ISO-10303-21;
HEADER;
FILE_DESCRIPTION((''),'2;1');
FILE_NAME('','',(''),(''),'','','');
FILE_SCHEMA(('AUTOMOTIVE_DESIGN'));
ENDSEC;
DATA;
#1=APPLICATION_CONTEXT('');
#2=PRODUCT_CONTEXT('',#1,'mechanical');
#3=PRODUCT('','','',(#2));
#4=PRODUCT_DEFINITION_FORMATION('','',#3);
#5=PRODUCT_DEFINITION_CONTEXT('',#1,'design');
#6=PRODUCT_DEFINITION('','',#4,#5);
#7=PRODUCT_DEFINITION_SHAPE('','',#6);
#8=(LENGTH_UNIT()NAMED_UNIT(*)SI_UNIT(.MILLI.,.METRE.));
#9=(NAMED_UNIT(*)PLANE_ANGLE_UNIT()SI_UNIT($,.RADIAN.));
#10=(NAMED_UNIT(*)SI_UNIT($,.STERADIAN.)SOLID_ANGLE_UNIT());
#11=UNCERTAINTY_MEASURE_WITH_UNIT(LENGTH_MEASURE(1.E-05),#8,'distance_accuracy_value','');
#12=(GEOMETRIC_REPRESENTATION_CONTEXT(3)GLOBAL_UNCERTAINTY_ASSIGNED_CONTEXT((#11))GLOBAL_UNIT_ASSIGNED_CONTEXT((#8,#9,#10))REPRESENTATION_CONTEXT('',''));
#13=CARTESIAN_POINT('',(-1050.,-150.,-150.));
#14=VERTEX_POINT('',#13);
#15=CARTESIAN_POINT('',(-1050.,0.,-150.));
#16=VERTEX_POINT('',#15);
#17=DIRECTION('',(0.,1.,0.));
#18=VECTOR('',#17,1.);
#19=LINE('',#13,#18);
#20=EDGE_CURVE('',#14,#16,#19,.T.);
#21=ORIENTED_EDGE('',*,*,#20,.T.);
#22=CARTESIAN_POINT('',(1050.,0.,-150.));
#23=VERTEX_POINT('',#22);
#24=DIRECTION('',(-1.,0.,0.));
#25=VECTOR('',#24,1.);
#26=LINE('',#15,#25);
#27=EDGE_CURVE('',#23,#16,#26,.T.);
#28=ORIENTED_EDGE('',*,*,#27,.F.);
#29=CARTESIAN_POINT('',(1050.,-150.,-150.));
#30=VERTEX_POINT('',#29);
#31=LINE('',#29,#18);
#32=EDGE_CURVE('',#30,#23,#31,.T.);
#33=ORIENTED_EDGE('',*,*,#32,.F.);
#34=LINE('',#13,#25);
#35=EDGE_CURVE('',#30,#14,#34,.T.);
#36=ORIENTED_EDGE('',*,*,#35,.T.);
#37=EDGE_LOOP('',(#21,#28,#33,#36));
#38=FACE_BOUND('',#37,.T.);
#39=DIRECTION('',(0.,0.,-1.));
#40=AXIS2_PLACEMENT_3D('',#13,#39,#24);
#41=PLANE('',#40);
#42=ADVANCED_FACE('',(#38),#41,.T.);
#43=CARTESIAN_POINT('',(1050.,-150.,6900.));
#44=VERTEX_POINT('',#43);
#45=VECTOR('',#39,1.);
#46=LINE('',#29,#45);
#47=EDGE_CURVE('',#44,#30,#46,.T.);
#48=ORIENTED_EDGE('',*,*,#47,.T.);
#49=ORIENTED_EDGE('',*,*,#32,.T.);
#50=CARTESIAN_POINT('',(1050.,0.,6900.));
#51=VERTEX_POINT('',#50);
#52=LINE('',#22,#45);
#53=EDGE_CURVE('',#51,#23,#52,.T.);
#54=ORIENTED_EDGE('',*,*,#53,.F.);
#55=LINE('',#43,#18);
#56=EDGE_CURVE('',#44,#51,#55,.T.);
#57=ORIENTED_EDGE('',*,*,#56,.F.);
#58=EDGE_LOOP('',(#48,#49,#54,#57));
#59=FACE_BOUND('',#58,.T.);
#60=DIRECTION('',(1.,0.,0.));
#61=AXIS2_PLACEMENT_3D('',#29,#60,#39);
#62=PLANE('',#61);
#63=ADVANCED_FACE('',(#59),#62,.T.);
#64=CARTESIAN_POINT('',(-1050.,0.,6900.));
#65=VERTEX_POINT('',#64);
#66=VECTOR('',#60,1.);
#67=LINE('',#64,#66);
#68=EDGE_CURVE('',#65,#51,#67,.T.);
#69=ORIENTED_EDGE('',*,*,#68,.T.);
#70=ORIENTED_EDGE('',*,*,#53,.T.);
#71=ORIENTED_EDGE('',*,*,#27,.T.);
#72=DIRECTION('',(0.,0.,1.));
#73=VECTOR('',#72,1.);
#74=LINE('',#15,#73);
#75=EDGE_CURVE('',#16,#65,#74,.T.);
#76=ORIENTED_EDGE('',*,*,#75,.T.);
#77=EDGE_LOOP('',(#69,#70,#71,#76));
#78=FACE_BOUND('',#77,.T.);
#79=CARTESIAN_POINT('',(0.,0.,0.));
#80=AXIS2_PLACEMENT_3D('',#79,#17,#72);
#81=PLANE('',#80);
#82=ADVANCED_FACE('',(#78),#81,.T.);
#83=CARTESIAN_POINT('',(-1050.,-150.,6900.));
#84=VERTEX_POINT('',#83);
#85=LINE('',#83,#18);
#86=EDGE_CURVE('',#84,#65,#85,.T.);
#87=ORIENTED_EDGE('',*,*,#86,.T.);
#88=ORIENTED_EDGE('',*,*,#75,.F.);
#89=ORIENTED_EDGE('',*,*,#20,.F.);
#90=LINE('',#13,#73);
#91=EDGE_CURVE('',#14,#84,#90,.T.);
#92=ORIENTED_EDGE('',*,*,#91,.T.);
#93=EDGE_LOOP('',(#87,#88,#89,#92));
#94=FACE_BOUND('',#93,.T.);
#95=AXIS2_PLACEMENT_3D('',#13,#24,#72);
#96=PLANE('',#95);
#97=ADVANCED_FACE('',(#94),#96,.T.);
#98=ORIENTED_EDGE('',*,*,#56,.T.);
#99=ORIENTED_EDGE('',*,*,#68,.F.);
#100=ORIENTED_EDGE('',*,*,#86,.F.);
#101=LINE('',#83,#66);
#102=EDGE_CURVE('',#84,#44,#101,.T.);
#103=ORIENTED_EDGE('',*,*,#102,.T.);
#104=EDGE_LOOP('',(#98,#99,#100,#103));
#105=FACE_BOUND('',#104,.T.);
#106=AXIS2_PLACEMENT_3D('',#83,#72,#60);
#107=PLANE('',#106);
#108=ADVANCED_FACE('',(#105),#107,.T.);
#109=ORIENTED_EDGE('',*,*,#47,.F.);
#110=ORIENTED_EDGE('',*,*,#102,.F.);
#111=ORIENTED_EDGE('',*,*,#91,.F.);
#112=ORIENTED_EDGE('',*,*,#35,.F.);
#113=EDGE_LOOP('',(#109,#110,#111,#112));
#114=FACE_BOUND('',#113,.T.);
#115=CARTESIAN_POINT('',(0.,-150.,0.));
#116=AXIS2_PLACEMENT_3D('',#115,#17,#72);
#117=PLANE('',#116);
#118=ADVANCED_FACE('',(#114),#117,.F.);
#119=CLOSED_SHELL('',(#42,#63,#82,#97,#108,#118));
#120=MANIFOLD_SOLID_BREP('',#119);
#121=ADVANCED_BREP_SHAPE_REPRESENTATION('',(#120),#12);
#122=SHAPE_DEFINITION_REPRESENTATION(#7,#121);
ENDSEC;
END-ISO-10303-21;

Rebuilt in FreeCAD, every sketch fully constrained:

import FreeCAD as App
import Part
import Sketcher

doc = App.newDocument("Part")
params = doc.addObject("Spreadsheet::Sheet", "Params")
for row, (alias, value) in enumerate([
    ("sketch1_width", "2100 mm"),
    ("sketch1_height", "7050 mm"),
    ("pad1_length", "150 mm"),
], start=1):
    params.set(f"A{row}", alias)
    params.set(f"B{row}", "=" + value)
    params.setAlias(f"B{row}", alias)

body = doc.addObject("PartDesign::Body", "Body")

# Sketch on XZ plane
sketch1 = doc.addObject("Sketcher::SketchObject", "Sketch")
body.addObject(sketch1)
sketch1.AttachmentSupport = (doc.XZ_Plane, [""])
sketch1.MapMode = "FlatFace"
sketch1.addGeometry(Part.LineSegment(App.Vector(-1050, -150, 0), App.Vector(-1050, 6900, 0)), False)
sketch1.addGeometry(Part.LineSegment(App.Vector(-1050, 6900, 0), App.Vector(1050, 6900, 0)), False)
sketch1.addGeometry(Part.LineSegment(App.Vector(1050, 6900, 0), App.Vector(1050, -150, 0)), False)
sketch1.addGeometry(Part.LineSegment(App.Vector(1050, -150, 0), App.Vector(-1050, -150, 0)), False)
sketch1.addConstraint(Sketcher.Constraint("Coincident", 0, 2, 1, 1))
sketch1.addConstraint(Sketcher.Constraint("Coincident", 1, 2, 2, 1))
sketch1.addConstraint(Sketcher.Constraint("Coincident", 2, 2, 3, 1))
sketch1.addConstraint(Sketcher.Constraint("Coincident", 3, 2, 0, 1))
sketch1.addConstraint(Sketcher.Constraint("Vertical", 0))
sketch1.addConstraint(Sketcher.Constraint("Horizontal", 1))
sketch1.addConstraint(Sketcher.Constraint("Vertical", 2))
sketch1.addConstraint(Sketcher.Constraint("Horizontal", 3))
sketch1.addConstraint(Sketcher.Constraint("DistanceX", 1, 1, 1, 2, 2100.0))
sketch1.addConstraint(Sketcher.Constraint("DistanceY", 0, 1, 0, 2, 7050.0))
sketch1.addConstraint(Sketcher.Constraint("DistanceX", 0, 2, -1, 1, 1050.0))
sketch1.addConstraint(Sketcher.Constraint("DistanceY", -1, 1, 0, 2, 6900.0))
sketch1.setExpression("Constraints[8]", "Params.sketch1_width")
sketch1.setExpression("Constraints[9]", "Params.sketch1_height")
pad1 = doc.addObject("PartDesign::Pad", "Pad")
body.addObject(pad1)
pad1.Profile = sketch1
pad1.setExpression("Length", "Params.pad1_length")

doc.recompute()
